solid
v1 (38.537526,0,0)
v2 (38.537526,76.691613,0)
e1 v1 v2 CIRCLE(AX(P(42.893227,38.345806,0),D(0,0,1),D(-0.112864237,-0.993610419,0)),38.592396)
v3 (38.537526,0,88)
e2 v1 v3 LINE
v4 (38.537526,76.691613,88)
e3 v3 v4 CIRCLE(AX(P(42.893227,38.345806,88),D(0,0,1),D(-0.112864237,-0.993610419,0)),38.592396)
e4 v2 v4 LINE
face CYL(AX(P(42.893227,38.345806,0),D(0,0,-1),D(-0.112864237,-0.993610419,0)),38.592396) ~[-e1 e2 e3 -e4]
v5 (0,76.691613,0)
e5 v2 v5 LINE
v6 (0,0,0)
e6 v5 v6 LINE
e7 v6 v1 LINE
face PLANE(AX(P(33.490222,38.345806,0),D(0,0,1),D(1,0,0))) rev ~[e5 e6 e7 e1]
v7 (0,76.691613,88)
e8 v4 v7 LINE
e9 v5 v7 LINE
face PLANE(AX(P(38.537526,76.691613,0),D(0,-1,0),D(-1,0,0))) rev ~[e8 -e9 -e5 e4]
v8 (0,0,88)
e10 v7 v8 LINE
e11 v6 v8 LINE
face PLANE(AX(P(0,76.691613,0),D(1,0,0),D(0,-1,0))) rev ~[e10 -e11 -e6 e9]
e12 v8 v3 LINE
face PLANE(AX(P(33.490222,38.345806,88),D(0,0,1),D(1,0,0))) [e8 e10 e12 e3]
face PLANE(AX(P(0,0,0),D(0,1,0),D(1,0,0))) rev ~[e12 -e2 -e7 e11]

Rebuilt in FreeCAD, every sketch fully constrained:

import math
import FreeCAD as App
import Part
import Sketcher

V = App.Vector

doc = App.newDocument("Part")
body = doc.addObject("PartDesign::Body", "Body")

# Sketch on XY plane
sketch1 = body.newObject("Sketcher::SketchObject", "Sketch")
sketch1.AttachmentSupport = (doc.getObject("XY_Plane"), [""])
sketch1.MapMode = "FlatFace"
sketch1.addGeometry([
    Part.LineSegment(V(0, 76.691613, 0), V(0, 0, 0)),
    Part.LineSegment(V(0, 0, 0), V(38.537526, 0, 0)),
    Part.ArcOfCircle(Part.Circle(V(42.893227, 38.345806, 0), V(0, 0, 1), 38.592396), math.radians(-96.480453), math.radians(96.480453)),
    Part.LineSegment(V(38.537526, 76.691613, 0), V(0, 76.691613, 0)),
], False)
sketch1.addConstraint([
    Sketcher.Constraint("Coincident", 0, 2, 1, 1),
    Sketcher.Constraint("Coincident", 1, 2, 2, 1),
    Sketcher.Constraint("Coincident", 2, 2, 3, 1),
    Sketcher.Constraint("Coincident", 3, 2, 0, 1),
    Sketcher.Constraint("Vertical", 0),
    Sketcher.Constraint("Horizontal", 1),
    Sketcher.Constraint("Horizontal", 3),
    Sketcher.Constraint("Coincident", 0, 2, -1, 1),
    Sketcher.Constraint("Vertical", 1, 2, 2, 2),
    Sketcher.Constraint("Radius", 2, 38.592396),
    Sketcher.Constraint("DistanceX", 1, 2, 2, 3, 4.355701),
    Sketcher.Constraint("DistanceX", 1, 1, 1, 2, 38.537526),
])
pad1 = body.newObject("PartDesign::Pad", "Pad")
pad1.Profile = sketch1
pad1.Length = 88

doc.recompute()
